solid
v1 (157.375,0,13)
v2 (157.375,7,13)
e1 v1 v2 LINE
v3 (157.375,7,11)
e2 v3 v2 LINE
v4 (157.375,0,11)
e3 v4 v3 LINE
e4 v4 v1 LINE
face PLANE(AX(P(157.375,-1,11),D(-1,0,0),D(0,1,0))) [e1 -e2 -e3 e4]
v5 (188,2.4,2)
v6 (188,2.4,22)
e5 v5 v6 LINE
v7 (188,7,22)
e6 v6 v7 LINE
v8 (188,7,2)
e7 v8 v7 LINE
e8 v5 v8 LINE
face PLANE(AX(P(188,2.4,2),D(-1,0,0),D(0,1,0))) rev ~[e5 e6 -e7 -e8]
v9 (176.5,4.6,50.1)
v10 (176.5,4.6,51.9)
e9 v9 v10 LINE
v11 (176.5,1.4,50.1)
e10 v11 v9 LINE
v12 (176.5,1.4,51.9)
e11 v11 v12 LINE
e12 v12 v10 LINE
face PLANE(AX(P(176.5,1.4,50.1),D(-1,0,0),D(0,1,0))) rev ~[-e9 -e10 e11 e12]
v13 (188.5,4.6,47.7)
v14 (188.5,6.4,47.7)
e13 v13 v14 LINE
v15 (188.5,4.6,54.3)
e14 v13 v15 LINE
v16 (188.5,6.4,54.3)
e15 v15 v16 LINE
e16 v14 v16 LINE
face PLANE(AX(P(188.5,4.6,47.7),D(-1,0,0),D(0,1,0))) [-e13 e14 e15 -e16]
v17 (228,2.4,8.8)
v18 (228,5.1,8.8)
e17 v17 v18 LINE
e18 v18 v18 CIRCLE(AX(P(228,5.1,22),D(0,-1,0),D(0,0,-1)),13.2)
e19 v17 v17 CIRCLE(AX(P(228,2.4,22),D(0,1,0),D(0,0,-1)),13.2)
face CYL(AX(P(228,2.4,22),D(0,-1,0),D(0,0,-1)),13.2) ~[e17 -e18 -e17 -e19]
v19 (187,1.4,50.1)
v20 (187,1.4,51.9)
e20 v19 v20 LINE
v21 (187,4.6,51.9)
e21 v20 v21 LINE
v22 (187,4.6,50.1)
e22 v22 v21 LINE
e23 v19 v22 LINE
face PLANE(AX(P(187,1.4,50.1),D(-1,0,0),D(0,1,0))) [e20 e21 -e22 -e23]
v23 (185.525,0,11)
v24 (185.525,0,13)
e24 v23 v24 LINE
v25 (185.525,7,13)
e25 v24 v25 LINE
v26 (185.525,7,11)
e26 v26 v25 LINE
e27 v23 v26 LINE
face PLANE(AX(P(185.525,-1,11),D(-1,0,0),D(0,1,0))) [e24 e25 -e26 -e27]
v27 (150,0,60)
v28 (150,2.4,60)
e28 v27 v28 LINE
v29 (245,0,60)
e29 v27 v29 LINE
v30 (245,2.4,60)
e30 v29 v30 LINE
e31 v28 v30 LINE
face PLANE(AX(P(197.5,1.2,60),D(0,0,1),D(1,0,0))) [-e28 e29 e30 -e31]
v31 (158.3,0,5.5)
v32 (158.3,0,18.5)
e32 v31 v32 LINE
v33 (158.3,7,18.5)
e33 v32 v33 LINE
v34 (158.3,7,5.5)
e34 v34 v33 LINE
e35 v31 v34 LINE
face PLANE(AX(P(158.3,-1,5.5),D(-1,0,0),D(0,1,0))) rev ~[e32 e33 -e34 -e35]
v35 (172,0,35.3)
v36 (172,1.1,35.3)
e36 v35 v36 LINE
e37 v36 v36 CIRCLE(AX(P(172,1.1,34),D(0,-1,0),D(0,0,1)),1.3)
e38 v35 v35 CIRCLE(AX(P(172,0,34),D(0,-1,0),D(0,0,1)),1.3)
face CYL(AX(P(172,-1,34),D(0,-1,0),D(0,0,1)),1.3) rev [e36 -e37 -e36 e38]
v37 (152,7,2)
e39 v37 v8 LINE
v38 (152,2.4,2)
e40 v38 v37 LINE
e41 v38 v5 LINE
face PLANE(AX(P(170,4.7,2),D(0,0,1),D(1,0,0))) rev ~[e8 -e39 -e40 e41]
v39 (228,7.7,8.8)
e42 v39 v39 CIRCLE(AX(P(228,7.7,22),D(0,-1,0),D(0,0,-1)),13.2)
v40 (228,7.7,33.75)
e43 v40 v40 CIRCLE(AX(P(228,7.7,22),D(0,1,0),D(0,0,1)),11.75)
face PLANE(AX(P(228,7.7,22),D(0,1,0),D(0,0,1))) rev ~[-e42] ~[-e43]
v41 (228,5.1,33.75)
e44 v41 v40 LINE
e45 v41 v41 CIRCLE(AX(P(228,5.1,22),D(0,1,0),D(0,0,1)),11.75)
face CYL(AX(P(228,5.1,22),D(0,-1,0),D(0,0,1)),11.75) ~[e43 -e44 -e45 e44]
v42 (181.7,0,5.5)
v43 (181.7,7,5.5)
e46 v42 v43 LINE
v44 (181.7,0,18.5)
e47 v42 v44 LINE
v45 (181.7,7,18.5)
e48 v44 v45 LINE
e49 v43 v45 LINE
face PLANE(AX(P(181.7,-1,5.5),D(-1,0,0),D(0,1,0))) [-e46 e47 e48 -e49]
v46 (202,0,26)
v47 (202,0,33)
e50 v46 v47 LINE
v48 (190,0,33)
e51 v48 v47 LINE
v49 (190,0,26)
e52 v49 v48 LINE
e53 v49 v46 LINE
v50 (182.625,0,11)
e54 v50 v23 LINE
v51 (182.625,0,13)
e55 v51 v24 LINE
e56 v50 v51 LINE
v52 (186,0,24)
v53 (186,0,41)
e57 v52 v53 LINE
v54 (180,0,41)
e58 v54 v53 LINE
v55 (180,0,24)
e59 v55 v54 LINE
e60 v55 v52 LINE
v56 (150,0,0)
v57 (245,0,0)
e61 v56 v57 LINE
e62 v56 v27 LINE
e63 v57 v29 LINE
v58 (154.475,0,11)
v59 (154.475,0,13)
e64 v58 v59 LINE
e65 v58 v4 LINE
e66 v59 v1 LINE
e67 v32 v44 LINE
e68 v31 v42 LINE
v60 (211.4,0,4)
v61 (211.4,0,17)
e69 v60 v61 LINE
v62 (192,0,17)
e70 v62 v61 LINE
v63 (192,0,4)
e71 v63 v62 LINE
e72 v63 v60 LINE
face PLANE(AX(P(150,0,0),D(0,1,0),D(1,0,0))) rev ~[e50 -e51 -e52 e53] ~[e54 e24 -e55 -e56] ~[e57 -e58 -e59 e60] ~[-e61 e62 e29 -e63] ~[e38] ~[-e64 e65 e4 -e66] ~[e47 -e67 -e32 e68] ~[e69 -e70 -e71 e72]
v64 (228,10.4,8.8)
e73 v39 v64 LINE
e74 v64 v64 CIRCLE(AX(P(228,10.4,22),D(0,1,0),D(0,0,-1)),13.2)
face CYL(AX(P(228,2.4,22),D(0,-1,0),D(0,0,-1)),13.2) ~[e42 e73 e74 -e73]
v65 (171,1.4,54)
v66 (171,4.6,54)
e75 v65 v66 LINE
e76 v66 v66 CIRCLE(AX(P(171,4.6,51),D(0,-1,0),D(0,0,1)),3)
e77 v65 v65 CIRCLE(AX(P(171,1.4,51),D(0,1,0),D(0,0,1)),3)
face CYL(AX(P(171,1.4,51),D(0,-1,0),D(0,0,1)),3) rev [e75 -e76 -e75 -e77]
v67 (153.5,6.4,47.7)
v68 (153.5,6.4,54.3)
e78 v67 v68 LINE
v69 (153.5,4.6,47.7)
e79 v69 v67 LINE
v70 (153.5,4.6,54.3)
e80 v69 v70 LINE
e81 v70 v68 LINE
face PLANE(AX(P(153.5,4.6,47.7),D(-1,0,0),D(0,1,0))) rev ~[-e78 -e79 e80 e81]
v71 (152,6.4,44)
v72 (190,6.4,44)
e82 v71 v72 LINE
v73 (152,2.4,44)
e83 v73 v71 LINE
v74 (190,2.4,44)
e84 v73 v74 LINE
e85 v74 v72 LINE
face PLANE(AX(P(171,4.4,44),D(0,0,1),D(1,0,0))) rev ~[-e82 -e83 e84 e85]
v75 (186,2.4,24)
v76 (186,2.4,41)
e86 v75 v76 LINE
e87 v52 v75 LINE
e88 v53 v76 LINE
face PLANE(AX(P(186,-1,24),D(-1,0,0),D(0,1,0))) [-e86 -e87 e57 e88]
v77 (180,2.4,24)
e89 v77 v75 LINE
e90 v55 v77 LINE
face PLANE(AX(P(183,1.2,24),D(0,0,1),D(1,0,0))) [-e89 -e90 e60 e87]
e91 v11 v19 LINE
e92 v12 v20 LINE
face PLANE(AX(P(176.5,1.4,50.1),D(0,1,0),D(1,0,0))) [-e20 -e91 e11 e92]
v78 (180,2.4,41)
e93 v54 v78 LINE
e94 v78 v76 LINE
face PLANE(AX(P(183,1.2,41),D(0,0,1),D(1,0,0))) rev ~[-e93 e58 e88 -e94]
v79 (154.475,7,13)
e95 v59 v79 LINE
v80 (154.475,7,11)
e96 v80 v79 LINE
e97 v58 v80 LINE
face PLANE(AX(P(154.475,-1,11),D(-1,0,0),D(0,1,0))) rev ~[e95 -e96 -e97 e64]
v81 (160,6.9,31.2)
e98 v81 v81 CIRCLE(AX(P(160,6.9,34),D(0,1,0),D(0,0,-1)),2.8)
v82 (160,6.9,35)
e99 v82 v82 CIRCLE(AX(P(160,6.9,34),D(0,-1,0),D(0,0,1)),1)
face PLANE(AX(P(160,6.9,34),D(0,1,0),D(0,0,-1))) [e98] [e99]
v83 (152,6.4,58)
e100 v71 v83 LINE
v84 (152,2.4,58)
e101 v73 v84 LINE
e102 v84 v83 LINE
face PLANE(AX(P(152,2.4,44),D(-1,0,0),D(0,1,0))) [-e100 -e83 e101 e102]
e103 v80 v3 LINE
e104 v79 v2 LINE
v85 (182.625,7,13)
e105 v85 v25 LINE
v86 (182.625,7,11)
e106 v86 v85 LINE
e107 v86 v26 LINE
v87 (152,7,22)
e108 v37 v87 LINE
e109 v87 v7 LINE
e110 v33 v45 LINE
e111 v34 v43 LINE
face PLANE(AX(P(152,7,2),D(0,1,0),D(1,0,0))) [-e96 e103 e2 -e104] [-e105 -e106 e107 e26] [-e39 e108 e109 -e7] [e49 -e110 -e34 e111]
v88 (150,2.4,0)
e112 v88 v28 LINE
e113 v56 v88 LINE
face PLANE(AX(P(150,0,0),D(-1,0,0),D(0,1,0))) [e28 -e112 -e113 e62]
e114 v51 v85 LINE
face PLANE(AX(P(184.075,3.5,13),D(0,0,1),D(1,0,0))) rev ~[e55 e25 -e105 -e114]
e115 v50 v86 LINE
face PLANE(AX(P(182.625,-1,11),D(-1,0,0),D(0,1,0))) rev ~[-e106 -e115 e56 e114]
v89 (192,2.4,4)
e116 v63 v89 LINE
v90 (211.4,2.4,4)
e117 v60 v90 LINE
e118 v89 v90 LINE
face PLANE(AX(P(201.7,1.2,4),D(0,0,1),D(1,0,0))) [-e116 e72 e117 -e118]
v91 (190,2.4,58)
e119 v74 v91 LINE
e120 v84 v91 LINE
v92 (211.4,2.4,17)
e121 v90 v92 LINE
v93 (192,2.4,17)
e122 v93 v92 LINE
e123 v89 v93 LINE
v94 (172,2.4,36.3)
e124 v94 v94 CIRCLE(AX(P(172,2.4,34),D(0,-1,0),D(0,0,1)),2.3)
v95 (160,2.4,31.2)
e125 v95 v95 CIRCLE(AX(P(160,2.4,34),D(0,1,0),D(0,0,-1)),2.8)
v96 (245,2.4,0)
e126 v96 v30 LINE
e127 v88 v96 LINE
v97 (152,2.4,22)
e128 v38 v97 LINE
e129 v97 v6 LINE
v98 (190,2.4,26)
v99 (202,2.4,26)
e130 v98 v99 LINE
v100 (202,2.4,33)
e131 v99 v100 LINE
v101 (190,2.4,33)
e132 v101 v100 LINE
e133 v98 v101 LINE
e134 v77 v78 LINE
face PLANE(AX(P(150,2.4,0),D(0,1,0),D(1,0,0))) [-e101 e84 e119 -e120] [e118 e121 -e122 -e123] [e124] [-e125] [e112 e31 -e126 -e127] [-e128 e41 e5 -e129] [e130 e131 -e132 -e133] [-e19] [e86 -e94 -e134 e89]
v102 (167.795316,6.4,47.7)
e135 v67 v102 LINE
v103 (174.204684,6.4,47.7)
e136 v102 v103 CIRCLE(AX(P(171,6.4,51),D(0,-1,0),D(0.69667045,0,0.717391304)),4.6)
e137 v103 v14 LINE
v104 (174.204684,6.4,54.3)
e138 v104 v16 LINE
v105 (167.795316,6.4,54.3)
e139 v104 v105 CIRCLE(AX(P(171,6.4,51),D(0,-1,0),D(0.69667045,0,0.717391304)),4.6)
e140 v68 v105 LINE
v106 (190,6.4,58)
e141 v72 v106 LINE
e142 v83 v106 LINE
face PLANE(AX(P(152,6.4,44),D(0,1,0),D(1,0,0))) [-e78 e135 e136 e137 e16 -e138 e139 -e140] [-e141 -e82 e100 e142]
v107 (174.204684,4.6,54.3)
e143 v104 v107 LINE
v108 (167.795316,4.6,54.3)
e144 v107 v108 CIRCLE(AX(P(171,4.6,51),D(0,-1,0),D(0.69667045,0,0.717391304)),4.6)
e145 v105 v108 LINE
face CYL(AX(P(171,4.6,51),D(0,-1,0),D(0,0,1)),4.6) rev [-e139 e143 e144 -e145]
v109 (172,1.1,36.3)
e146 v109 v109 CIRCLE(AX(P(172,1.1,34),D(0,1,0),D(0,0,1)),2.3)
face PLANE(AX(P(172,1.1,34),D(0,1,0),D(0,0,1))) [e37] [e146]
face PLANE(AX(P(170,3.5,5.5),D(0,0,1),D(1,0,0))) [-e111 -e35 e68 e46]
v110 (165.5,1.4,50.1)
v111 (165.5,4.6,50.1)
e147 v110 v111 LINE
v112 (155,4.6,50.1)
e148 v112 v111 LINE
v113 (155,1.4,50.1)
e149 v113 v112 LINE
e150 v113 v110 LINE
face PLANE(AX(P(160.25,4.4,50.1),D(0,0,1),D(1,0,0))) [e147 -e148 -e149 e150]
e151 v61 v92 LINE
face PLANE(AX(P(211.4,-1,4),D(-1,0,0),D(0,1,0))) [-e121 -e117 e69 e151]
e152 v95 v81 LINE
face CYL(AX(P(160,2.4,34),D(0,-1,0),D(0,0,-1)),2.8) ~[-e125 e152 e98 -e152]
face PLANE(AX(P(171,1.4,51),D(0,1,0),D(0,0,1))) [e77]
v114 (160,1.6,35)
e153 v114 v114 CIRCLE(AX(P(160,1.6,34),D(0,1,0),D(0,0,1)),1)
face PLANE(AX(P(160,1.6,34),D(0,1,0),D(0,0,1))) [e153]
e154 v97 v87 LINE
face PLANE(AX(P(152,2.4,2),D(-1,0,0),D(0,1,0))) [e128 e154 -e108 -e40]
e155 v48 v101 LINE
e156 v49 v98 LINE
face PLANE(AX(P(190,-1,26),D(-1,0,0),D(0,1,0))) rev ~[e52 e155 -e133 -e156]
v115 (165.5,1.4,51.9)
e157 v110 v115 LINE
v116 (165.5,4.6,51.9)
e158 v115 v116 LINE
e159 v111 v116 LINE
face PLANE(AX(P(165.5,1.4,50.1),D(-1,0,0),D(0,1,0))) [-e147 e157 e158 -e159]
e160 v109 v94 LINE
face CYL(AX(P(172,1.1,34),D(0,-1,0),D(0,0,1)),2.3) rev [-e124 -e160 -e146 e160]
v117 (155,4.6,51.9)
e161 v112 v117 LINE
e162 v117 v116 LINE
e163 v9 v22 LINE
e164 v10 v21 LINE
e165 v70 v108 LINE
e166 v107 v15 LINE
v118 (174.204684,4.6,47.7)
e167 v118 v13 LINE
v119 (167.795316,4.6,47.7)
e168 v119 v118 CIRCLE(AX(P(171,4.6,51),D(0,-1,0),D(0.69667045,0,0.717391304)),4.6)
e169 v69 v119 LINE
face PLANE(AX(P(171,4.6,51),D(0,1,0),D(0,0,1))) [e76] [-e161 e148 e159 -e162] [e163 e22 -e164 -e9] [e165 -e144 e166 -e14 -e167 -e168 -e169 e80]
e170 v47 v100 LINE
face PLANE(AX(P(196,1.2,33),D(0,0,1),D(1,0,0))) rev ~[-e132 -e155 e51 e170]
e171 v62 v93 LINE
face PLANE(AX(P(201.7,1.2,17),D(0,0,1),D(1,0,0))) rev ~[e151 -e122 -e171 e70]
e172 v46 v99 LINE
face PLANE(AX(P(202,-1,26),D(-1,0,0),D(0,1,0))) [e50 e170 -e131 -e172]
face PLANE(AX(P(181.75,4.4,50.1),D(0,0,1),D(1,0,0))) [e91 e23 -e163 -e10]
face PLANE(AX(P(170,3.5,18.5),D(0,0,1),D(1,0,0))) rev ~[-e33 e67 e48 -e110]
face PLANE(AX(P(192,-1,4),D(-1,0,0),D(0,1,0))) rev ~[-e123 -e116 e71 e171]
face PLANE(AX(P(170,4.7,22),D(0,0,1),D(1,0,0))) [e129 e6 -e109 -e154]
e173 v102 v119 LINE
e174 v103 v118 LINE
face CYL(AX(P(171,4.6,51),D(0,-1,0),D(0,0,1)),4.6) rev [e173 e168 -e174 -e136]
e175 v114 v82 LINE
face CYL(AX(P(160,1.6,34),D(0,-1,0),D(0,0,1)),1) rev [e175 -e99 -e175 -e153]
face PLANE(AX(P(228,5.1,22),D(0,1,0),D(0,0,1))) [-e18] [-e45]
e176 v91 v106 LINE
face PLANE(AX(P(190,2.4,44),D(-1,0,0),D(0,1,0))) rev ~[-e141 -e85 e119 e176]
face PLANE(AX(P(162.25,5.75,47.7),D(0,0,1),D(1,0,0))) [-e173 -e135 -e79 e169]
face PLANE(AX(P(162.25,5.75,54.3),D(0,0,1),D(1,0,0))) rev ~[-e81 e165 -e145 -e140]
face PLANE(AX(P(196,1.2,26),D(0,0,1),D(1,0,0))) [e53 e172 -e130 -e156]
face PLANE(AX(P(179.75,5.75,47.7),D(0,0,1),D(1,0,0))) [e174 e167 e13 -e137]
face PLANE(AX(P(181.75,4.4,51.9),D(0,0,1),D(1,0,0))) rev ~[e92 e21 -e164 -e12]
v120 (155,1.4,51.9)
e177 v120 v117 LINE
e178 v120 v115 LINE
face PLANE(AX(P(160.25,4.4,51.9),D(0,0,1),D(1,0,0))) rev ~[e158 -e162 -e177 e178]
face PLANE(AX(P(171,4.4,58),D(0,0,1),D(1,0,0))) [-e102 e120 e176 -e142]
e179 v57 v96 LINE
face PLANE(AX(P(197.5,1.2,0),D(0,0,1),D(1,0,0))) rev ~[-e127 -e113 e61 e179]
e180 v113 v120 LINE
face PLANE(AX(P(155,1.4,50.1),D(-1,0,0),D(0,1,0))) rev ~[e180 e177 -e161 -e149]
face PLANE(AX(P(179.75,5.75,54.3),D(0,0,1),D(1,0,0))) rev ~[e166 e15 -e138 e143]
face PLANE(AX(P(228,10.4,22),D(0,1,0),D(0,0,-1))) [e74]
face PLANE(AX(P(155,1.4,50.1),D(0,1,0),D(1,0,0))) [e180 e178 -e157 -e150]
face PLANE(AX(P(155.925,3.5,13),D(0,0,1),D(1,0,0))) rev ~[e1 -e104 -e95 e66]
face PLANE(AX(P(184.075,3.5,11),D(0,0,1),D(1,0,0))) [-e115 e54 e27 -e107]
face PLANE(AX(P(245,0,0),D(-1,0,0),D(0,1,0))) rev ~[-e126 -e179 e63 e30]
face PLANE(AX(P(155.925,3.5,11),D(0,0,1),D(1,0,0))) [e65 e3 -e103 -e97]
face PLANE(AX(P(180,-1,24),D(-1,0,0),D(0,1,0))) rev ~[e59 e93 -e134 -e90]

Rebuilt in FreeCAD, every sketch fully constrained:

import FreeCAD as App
import Part
import Sketcher
from FreeCAD import Vector


def add_polygon(sketch, points):
    """Adds a closed chain of lines whose ends are joined by coincident constraints."""
    first, n = sketch.GeometryCount, len(points)
    for a, b in zip(points, points[1:] + points[:1]):
        sketch.addGeometry(Part.LineSegment(App.Vector(*a, 0), App.Vector(*b, 0)), False)
    for i in range(n):
        sketch.addConstraint(Sketcher.Constraint("Coincident", first + i, 2, first + (i + 1) % n, 1))

doc = App.newDocument("Part")
params = doc.addObject("Spreadsheet::Sheet", "Params")
for row, (alias, value) in enumerate([
    ("sketch1_width", "95 mm"),
    ("sketch1_height", "2.4 mm"),
    ("pad1_length", "60 mm"),
    ("sketch2_width", "36 mm"),
    ("sketch2_height", "4.6 mm"),
    ("pad2_length", "20 mm"),
    ("sketch3_height", "9 mm"),
    ("sketch3_width", "23.4 mm"),
    ("pad3_length", "13 mm"),
    ("sketch4_height", "9 mm"),
    ("sketch4_width", "2.9 mm"),
    ("pad4_length", "2 mm"),
    ("sketch5_height", "9 mm"),
    ("sketch5_width", "2.9 mm"),
    ("pad5_length", "2 mm"),
    ("sketch6_width", "19.4 mm"),
    ("sketch6_height", "4.4 mm"),
    ("pad6_length", "13 mm"),
    ("sketch7_diameter", "5.6 mm"),
    ("pad7_length", "4.5 mm"),
    ("sketch8_diameter", "2 mm"),
    ("pad8_length", "6.3 mm"),
    ("sketch9_diameter", "2.6 mm"),
    ("pad9_length", "4.4 mm"),
    ("sketch10_diameter", "4.6 mm"),
    ("pad10_length", "2.3 mm"),
    ("sketch11_width", "6 mm"),
    ("sketch11_height", "4.4 mm"),
    ("pad11_length", "17 mm"),
    ("sketch12_width", "12 mm"),
    ("sketch12_height", "4.4 mm"),
    ("pad12_length", "7 mm"),
    ("sketch13_diameter", "26.4 mm"),
    ("pad13_length", "8 mm"),
    ("sketch14_diameter", "40 mm"),
    ("pad14_length", "2.6 mm"),
    ("sketch15_diameter", "23.5 mm"),
    ("pad15_length", "2.6 mm"),
    ("sketch16_width", "38 mm"),
    ("sketch16_height", "4 mm"),
    ("pad16_length", "14 mm"),
    ("sketch17_diameter", "9.2 mm"),
    ("pad17_length", "2.3 mm"),
    ("sketch18_width", "17.5 mm"),
    ("sketch18_height", "2.3 mm"),
    ("pad18_length", "6.6 mm"),
    ("sketch19_height", "6 mm"),
    ("sketch19_width", "10.5 mm"),
    ("pad19_length", "1.8 mm"),
    ("sketch20_width", "17.5 mm"),
    ("sketch20_height", "2.3 mm"),
    ("pad20_length", "6.6 mm"),
    ("sketch21_height", "6 mm"),
    ("sketch21_width", "10.5 mm"),
    ("pad21_length", "1.8 mm"),
    ("sketch22_diameter", "6 mm"),
    ("pad22_length", "6 mm"),
], start=1):
    params.set(f"A{row}", alias)
    params.set(f"B{row}", "=" + value)
    params.setAlias(f"B{row}", alias)

body = doc.addObject("PartDesign::Body", "Body")

# Sketch on XY plane
sketch1 = body.newObject("Sketcher::SketchObject", "Sketch")
sketch1.AttachmentSupport = (doc.getObject("XY_Plane"), [""])
sketch1.MapMode = "FlatFace"
add_polygon(sketch1, [(150, 2.4), (150, 0), (245, 0), (245, 2.4)])  # lines 0-3
sketch1.addConstraint([
    Sketcher.Constraint("Vertical", 0),
    Sketcher.Constraint("Horizontal", 1),
    Sketcher.Constraint("Vertical", 2),
    Sketcher.Constraint("Horizontal", 3),
    Sketcher.Constraint("PointOnObject", 0, 2, -1),
    Sketcher.Constraint("DistanceX", 1, 1, 1, 2, 95.0),
    Sketcher.Constraint("DistanceY", 0, 2, 0, 1, 2.4),
    Sketcher.Constraint("DistanceX", -1, 1, 0, 2, 150.0),
])
sketch1.setExpression("Constraints[9]", "Params.sketch1_width")
sketch1.setExpression("Constraints[10]", "Params.sketch1_height")
pad1 = body.newObject("PartDesign::Pad", "Pad")
pad1.Profile = sketch1
pad1.setExpression("Length", "Params.pad1_length")

# Sketch on XY plane
sketch2 = body.newObject("Sketcher::SketchObject", "Sketch001")
sketch2.AttachmentSupport = (doc.getObject("XY_Plane"), [""])
sketch2.MapMode = "FlatFace"
sketch2.AttachmentOffset = App.Placement(Vector(0, 0, 2), App.Rotation())
add_polygon(sketch2, [(152, 7), (152, 2.4), (188, 2.4), (188, 7)])  # lines 0-3
sketch2.addConstraint([
    Sketcher.Constraint("Vertical", 0),
    Sketcher.Constraint("Horizontal", 1),
    Sketcher.Constraint("Vertical", 2),
    Sketcher.Constraint("Horizontal", 3),
    Sketcher.Constraint("DistanceX", 1, 1, 1, 2, 36.0),
    Sketcher.Constraint("DistanceY", 0, 2, 0, 1, 4.6),
    Sketcher.Constraint("DistanceX", -1, 1, 0, 2, 152.0),
    Sketcher.Constraint("DistanceY", -1, 1, 2, 2, 7.0),
])
sketch2.setExpression("Constraints[8]", "Params.sketch2_width")
sketch2.setExpression("Constraints[9]", "Params.sketch2_height")
pad2 = body.newObject("PartDesign::Pad", "Pad001")
pad2.Profile = sketch2
pad2.setExpression("Length", "Params.pad2_length")
body2 = doc.addObject("PartDesign::Body", "Body001")

# Sketch on XY plane
sketch3 = body2.newObject("Sketcher::SketchObject", "Sketch002")
sketch3.AttachmentSupport = (doc.getObject("XY_Plane001"), [""])
sketch3.MapMode = "FlatFace"
sketch3.AttachmentOffset = App.Placement(Vector(0, 0, 5.5), App.Rotation())
add_polygon(sketch3, [(158, 8), (158, -1), (182, -1), (182, 8)])  # lines 0-3
sketch3.addConstraint([
    Sketcher.Constraint("Vertical", 0),
    Sketcher.Constraint("Horizontal", 1),
    Sketcher.Constraint("Vertical", 2),
    Sketcher.Constraint("Horizontal", 3),
    Sketcher.Constraint("DistanceY", 0, 2, 0, 1, 9.0),
    Sketcher.Constraint("DistanceX", 1, 1, 1, 2, 23.4),
    Sketcher.Constraint("DistanceY", 0, 2, -1, 1, 1.0),
    Sketcher.Constraint("DistanceX", -1, 1, 0, 2, 158.3),
])
sketch3.setExpression("Constraints[8]", "Params.sketch3_height")
sketch3.setExpression("Constraints[9]", "Params.sketch3_width")
pad3 = body2.newObject("PartDesign::Pad", "Pad002")
pad3.Profile = sketch3
pad3.setExpression("Length", "Params.pad3_length")
doc.recompute()

boolean = body.newObject("PartDesign::Boolean", "Boolean")
boolean.Type = "Cut"
boolean.addObjects([body2])
body3 = doc.addObject("PartDesign::Body", "Body002")

# Sketch on XY plane
sketch4 = body3.newObject("Sketcher::SketchObject", "Sketch003")
sketch4.AttachmentSupport = (doc.getObject("XY_Plane002"), [""])
sketch4.MapMode = "FlatFace"
sketch4.AttachmentOffset = App.Placement(Vector(0, 0, 11), App.Rotation())
add_polygon(sketch4, [(154.5, 8), (154.5, -1), (157.4, -1), (157.4, 8)])  # lines 0-3
sketch4.addConstraint([
    Sketcher.Constraint("Vertical", 0),
    Sketcher.Constraint("Horizontal", 1),
    Sketcher.Constraint("Vertical", 2),
    Sketcher.Constraint("Horizontal", 3),
    Sketcher.Constraint("DistanceY", 0, 2, 0, 1, 9.0),
    Sketcher.Constraint("DistanceX", 1, 1, 1, 2, 2.9),
    Sketcher.Constraint("DistanceY", 0, 2, -1, 1, 1.0),
    Sketcher.Constraint("DistanceX", -1, 1, 0, 2, 154.475),
])
sketch4.setExpression("Constraints[8]", "Params.sketch4_height")
sketch4.setExpression("Constraints[9]", "Params.sketch4_width")
pad4 = body3.newObject("PartDesign::Pad", "Pad003")
pad4.Profile = sketch4
pad4.setExpression("Length", "Params.pad4_length")
doc.recompute()

boolean2 = body.newObject("PartDesign::Boolean", "Boolean001")
boolean2.Type = "Cut"
boolean2.addObjects([body3])
body4 = doc.addObject("PartDesign::Body", "Body003")

# Sketch on XY plane
sketch5 = body4.newObject("Sketcher::SketchObject", "Sketch004")
sketch5.AttachmentSupport = (doc.getObject("XY_Plane003"), [""])
sketch5.MapMode = "FlatFace"
sketch5.AttachmentOffset = App.Placement(Vector(0, 0, 11), App.Rotation())
add_polygon(sketch5, [(182.6, 8), (182.6, -1), (185.5, -1), (185.5, 8)])  # lines 0-3
sketch5.addConstraint([
    Sketcher.Constraint("Vertical", 0),
    Sketcher.Constraint("Horizontal", 1),
    Sketcher.Constraint("Vertical", 2),
    Sketcher.Constraint("Horizontal", 3),
    Sketcher.Constraint("DistanceY", 0, 2, 0, 1, 9.0),
    Sketcher.Constraint("DistanceX", 1, 1, 1, 2, 2.9),
    Sketcher.Constraint("DistanceY", 0, 2, -1, 1, 1.0),
    Sketcher.Constraint("DistanceX", -1, 1, 0, 2, 182.625),
])
sketch5.setExpression("Constraints[8]", "Params.sketch5_height")
sketch5.setExpression("Constraints[9]", "Params.sketch5_width")
pad5 = body4.newObject("PartDesign::Pad", "Pad004")
pad5.Profile = sketch5
pad5.setExpression("Length", "Params.pad5_length")
doc.recompute()

boolean3 = body.newObject("PartDesign::Boolean", "Boolean002")
boolean3.Type = "Cut"
boolean3.addObjects([body4])
body5 = doc.addObject("PartDesign::Body", "Body004")

# Sketch on XY plane
sketch6 = body5.newObject("Sketcher::SketchObject", "Sketch005")
sketch6.AttachmentSupport = (doc.getObject("XY_Plane004"), [""])
sketch6.MapMode = "FlatFace"
sketch6.AttachmentOffset = App.Placement(Vector(0, 0, 4), App.Rotation())
add_polygon(sketch6, [(192, 3.4), (192, -1), (211.4, -1), (211.4, 3.4)])  # lines 0-3
sketch6.addConstraint([
    Sketcher.Constraint("Vertical", 0),
    Sketcher.Constraint("Horizontal", 1),
    Sketcher.Constraint("Vertical", 2),
    Sketcher.Constraint("Horizontal", 3),
    Sketcher.Constraint("DistanceX", 1, 1, 1, 2, 19.4),
    Sketcher.Constraint("DistanceY", 0, 2, 0, 1, 4.4),
    Sketcher.Constraint("DistanceX", -1, 1, 0, 2, 192.0),
    Sketcher.Constraint("DistanceY", 0, 2, -1, 1, 1.0),
])
sketch6.setExpression("Constraints[8]", "Params.sketch6_width")
sketch6.setExpression("Constraints[9]", "Params.sketch6_height")
pad6 = body5.newObject("PartDesign::Pad", "Pad005")
pad6.Profile = sketch6
pad6.setExpression("Length", "Params.pad6_length")
doc.recompute()

boolean4 = body.newObject("PartDesign::Boolean", "Boolean003")
boolean4.Type = "Cut"
boolean4.addObjects([body5])

# Sketch on XZ plane
sketch7 = body.newObject("Sketcher::SketchObject", "Sketch006")
sketch7.AttachmentSupport = (doc.getObject("XZ_Plane"), [""])
sketch7.MapMode = "FlatFace"
sketch7.AttachmentOffset = App.Placement(Vector(0, 0, -2.4), App.Rotation())
sketch7.addGeometry(Part.Circle(Vector(160, 34, 0), Vector(0, 0, 1), 2.8), False)
sketch7.addConstraint([
    Sketcher.Constraint("Diameter", 0, 5.6),
    Sketcher.Constraint("DistanceX", -1, 1, 0, 3, 160.0),
    Sketcher.Constraint("DistanceY", -1, 1, 0, 3, 34.0),
])
sketch7.setExpression("Constraints[0]", "Params.sketch7_diameter")
pad7 = body.newObject("PartDesign::Pad", "Pad006")
pad7.Profile = sketch7
pad7.setExpression("Length", "Params.pad7_length")
pad7.Reversed = True
body6 = doc.addObject("PartDesign::Body", "Body005")

# Sketch on XZ plane
sketch8 = body6.newObject("Sketcher::SketchObject", "Sketch007")
sketch8.AttachmentSupport = (doc.getObject("XZ_Plane005"), [""])
sketch8.MapMode = "FlatFace"
sketch8.AttachmentOffset = App.Placement(Vector(0, 0, -1.6), App.Rotation())
sketch8.addGeometry(Part.Circle(Vector(160, 34, 0), Vector(0, 0, 1), 1), False)
sketch8.addConstraint([
    Sketcher.Constraint("Diameter", 0, 2.0),
    Sketcher.Constraint("DistanceX", -1, 1, 0, 3, 160.0),
    Sketcher.Constraint("DistanceY", -1, 1, 0, 3, 34.0),
])
sketch8.setExpression("Constraints[0]", "Params.sketch8_diameter")
pad8 = body6.newObject("PartDesign::Pad", "Pad007")
pad8.Profile = sketch8
pad8.setExpression("Length", "Params.pad8_length")
pad8.Reversed = True
doc.recompute()

boolean5 = body.newObject("PartDesign::Boolean", "Boolean004")
boolean5.Type = "Cut"
boolean5.addObjects([body6])
body7 = doc.addObject("PartDesign::Body", "Body006")

# Sketch on XZ plane
sketch9 = body7.newObject("Sketcher::SketchObject", "Sketch008")
sketch9.AttachmentSupport = (doc.getObject("XZ_Plane006"), [""])
sketch9.MapMode = "FlatFace"
sketch9.AttachmentOffset = App.Placement(Vector(0, 0, 1), App.Rotation())
sketch9.addGeometry(Part.Circle(Vector(172, 34, 0), Vector(0, 0, 1), 1.3), False)
sketch9.addConstraint([
    Sketcher.Constraint("Diameter", 0, 2.6),
    Sketcher.Constraint("DistanceX", -1, 1, 0, 3, 172.0),
    Sketcher.Constraint("DistanceY", -1, 1, 0, 3, 34.0),
])
sketch9.setExpression("Constraints[0]", "Params.sketch9_diameter")
pad9 = body7.newObject("PartDesign::Pad", "Pad008")
pad9.Profile = sketch9
pad9.setExpression("Length", "Params.pad9_length")
pad9.Reversed = True
doc.recompute()

boolean6 = body.newObject("PartDesign::Boolean", "Boolean005")
boolean6.Type = "Cut"
boolean6.addObjects([body7])
body8 = doc.addObject("PartDesign::Body", "Body007")

# Sketch on XZ plane
sketch10 = body8.newObject("Sketcher::SketchObject", "Sketch009")
sketch10.AttachmentSupport = (doc.getObject("XZ_Plane007"), [""])
sketch10.MapMode = "FlatFace"
sketch10.AttachmentOffset = App.Placement(Vector(0, 0, -1.1), App.Rotation())
sketch10.addGeometry(Part.Circle(Vector(172, 34, 0), Vector(0, 0, 1), 2.3), False)
sketch10.addConstraint([
    Sketcher.Constraint("Diameter", 0, 4.6),
    Sketcher.Constraint("DistanceX", -1, 1, 0, 3, 172.0),
    Sketcher.Constraint("DistanceY", -1, 1, 0, 3, 34.0),
])
sketch10.setExpression("Constraints[0]", "Params.sketch10_diameter")
pad10 = body8.newObject("PartDesign::Pad", "Pad009")
pad10.Profile = sketch10
pad10.setExpression("Length", "Params.pad10_length")
pad10.Reversed = True
doc.recompute()

boolean7 = body.newObject("PartDesign::Boolean", "Boolean006")
boolean7.Type = "Cut"
boolean7.addObjects([body8])
body9 = doc.addObject("PartDesign::Body", "Body008")

# Sketch on XY plane
sketch11 = body9.newObject("Sketcher::SketchObject", "Sketch010")
sketch11.AttachmentSupport = (doc.getObject("XY_Plane008"), [""])
sketch11.MapMode = "FlatFace"
sketch11.AttachmentOffset = App.Placement(Vector(0, 0, 24), App.Rotation())
add_polygon(sketch11, [(180, 3.4), (180, -1), (186, -1), (186, 3.4)])  # lines 0-3
sketch11.addConstraint([
    Sketcher.Constraint("Vertical", 0),
    Sketcher.Constraint("Horizontal", 1),
    Sketcher.Constraint("Vertical", 2),
    Sketcher.Constraint("Horizontal", 3),
    Sketcher.Constraint("DistanceX", 1, 1, 1, 2, 6.0),
    Sketcher.Constraint("DistanceY", 0, 2, 0, 1, 4.4),
    Sketcher.Constraint("DistanceX", -1, 1, 0, 2, 180.0),
    Sketcher.Constraint("DistanceY", 0, 2, -1, 1, 1.0),
])
sketch11.setExpression("Constraints[8]", "Params.sketch11_width")
sketch11.setExpression("Constraints[9]", "Params.sketch11_height")
pad11 = body9.newObject("PartDesign::Pad", "Pad010")
pad11.Profile = sketch11
pad11.setExpression("Length", "Params.pad11_length")
doc.recompute()

boolean8 = body.newObject("PartDesign::Boolean", "Boolean007")
boolean8.Type = "Cut"
boolean8.addObjects([body9])
body10 = doc.addObject("PartDesign::Body", "Body009")

# Sketch on XY plane
sketch12 = body10.newObject("Sketcher::SketchObject", "Sketch011")
sketch12.AttachmentSupport = (doc.getObject("XY_Plane009"), [""])
sketch12.MapMode = "FlatFace"
sketch12.AttachmentOffset = App.Placement(Vector(0, 0, 26), App.Rotation())
add_polygon(sketch12, [(190, 3.4), (190, -1), (202, -1), (202, 3.4)])  # lines 0-3
sketch12.addConstraint([
    Sketcher.Constraint("Vertical", 0),
    Sketcher.Constraint("Horizontal", 1),
    Sketcher.Constraint("Vertical", 2),
    Sketcher.Constraint("Horizontal", 3),
    Sketcher.Constraint("DistanceX", 1, 1, 1, 2, 12.0),
    Sketcher.Constraint("DistanceY", 0, 2, 0, 1, 4.4),
    Sketcher.Constraint("DistanceX", -1, 1, 0, 2, 190.0),
    Sketcher.Constraint("DistanceY", 0, 2, -1, 1, 1.0),
])
sketch12.setExpression("Constraints[8]", "Params.sketch12_width")
sketch12.setExpression("Constraints[9]", "Params.sketch12_height")
pad12 = body10.newObject("PartDesign::Pad", "Pad011")
pad12.Profile = sketch12
pad12.setExpression("Length", "Params.pad12_length")
doc.recompute()

boolean9 = body.newObject("PartDesign::Boolean", "Boolean008")
boolean9.Type = "Cut"
boolean9.addObjects([body10])

# Sketch on XZ plane
sketch13 = body.newObject("Sketcher::SketchObject", "Sketch012")
sketch13.AttachmentSupport = (doc.getObject("XZ_Plane"), [""])
sketch13.MapMode = "FlatFace"
sketch13.AttachmentOffset = App.Placement(Vector(0, 0, -2.4), App.Rotation())
sketch13.addGeometry(Part.Circle(Vector(228, 22, 0), Vector(0, 0, 1), 13), False)
sketch13.addConstraint([
    Sketcher.Constraint("Diameter", 0, 26.4),
    Sketcher.Constraint("DistanceX", -1, 1, 0, 3, 228.0),
    Sketcher.Constraint("DistanceY", -1, 1, 0, 3, 22.0),
])
sketch13.setExpression("Constraints[0]", "Params.sketch13_diameter")
pad13 = body.newObject("PartDesign::Pad", "Pad012")
pad13.Profile = sketch13
pad13.setExpression("Length", "Params.pad13_length")
pad13.Reversed = True
body11 = doc.addObject("PartDesign::Body", "Body010")

# Sketch on XZ plane
sketch14 = body11.newObject("Sketcher::SketchObject", "Sketch013")
sketch14.AttachmentSupport = (doc.getObject("XZ_Plane010"), [""])
sketch14.MapMode = "FlatFace"
sketch14.AttachmentOffset = App.Placement(Vector(0, 0, -5.1), App.Rotation())
sketch14.addGeometry(Part.Circle(Vector(228, 22, 0), Vector(0, 0, 1), 20), False)
sketch14.addConstraint([
    Sketcher.Constraint("Diameter", 0, 40.0),
    Sketcher.Constraint("DistanceX", -1, 1, 0, 3, 228.0),
    Sketcher.Constraint("DistanceY", -1, 1, 0, 3, 22.0),
])
sketch14.setExpression("Constraints[0]", "Params.sketch14_diameter")
pad14 = body11.newObject("PartDesign::Pad", "Pad013")
pad14.Profile = sketch14
pad14.setExpression("Length", "Params.pad14_length")
pad14.Reversed = True
body.AllowCompound = True
doc.recompute()

boolean10 = body.newObject("PartDesign::Boolean", "Boolean009")
boolean10.Type = "Cut"
boolean10.addObjects([body11])

# Sketch on XZ plane
sketch15 = body.newObject("Sketcher::SketchObject", "Sketch014")
sketch15.AttachmentSupport = (doc.getObject("XZ_Plane"), [""])
sketch15.MapMode = "FlatFace"
sketch15.AttachmentOffset = App.Placement(Vector(0, 0, -5.1), App.Rotation())
sketch15.addGeometry(Part.Circle(Vector(228, 22, 0), Vector(0, 0, 1), 12), False)
sketch15.addConstraint([
    Sketcher.Constraint("Diameter", 0, 23.5),
    Sketcher.Constraint("DistanceX", -1, 1, 0, 3, 228.0),
    Sketcher.Constraint("DistanceY", -1, 1, 0, 3, 22.0),
])
sketch15.setExpression("Constraints[0]", "Params.sketch15_diameter")
pad15 = body.newObject("PartDesign::Pad", "Pad014")
pad15.Profile = sketch15
pad15.setExpression("Length", "Params.pad15_length")
pad15.Reversed = True

# Sketch on XY plane
sketch16 = body.newObject("Sketcher::SketchObject", "Sketch015")
sketch16.AttachmentSupport = (doc.getObject("XY_Plane"), [""])
sketch16.MapMode = "FlatFace"
sketch16.AttachmentOffset = App.Placement(Vector(0, 0, 44), App.Rotation())
add_polygon(sketch16, [(152, 6.4), (152, 2.4), (190, 2.4), (190, 6.4)])  # lines 0-3
sketch16.addConstraint([
    Sketcher.Constraint("Vertical", 0),
    Sketcher.Constraint("Horizontal", 1),
    Sketcher.Constraint("Vertical", 2),
    Sketcher.Constraint("Horizontal", 3),
    Sketcher.Constraint("DistanceX", 1, 1, 1, 2, 38.0),
    Sketcher.Constraint("DistanceY", 0, 2, 0, 1, 4.0),
    Sketcher.Constraint("DistanceX", -1, 1, 0, 2, 152.0),
    Sketcher.Constraint("DistanceY", -1, 1, 0, 2, 2.4),
])
sketch16.setExpression("Constraints[8]", "Params.sketch16_width")
sketch16.setExpression("Constraints[9]", "Params.sketch16_height")
pad16 = body.newObject("PartDesign::Pad", "Pad015")
pad16.Profile = sketch16
pad16.setExpression("Length", "Params.pad16_length")
body12 = doc.addObject("PartDesign::Body", "Body011")

# Sketch on XZ plane
sketch17 = body12.newObject("Sketcher::SketchObject", "Sketch016")
sketch17.AttachmentSupport = (doc.getObject("XZ_Plane011"), [""])
sketch17.MapMode = "FlatFace"
sketch17.AttachmentOffset = App.Placement(Vector(0, 0, -4.6), App.Rotation())
sketch17.addGeometry(Part.Circle(Vector(171, 51, 0), Vector(0, 0, 1), 4.6), False)
sketch17.addConstraint([
    Sketcher.Constraint("Diameter", 0, 9.2),
    Sketcher.Constraint("DistanceX", -1, 1, 0, 3, 171.0),
    Sketcher.Constraint("DistanceY", -1, 1, 0, 3, 51.0),
])
sketch17.setExpression("Constraints[0]", "Params.sketch17_diameter")
pad17 = body12.newObject("PartDesign::Pad", "Pad016")
pad17.Profile = sketch17
pad17.setExpression("Length", "Params.pad17_length")
pad17.Reversed = True
doc.recompute()

boolean11 = body.newObject("PartDesign::Boolean", "Boolean010")
boolean11.Type = "Cut"
boolean11.addObjects([body12])
body13 = doc.addObject("PartDesign::Body", "Body012")

# Sketch on XY plane
sketch18 = body13.newObject("Sketcher::SketchObject", "Sketch017")
sketch18.AttachmentSupport = (doc.getObject("XY_Plane012"), [""])
sketch18.MapMode = "FlatFace"
sketch18.AttachmentOffset = App.Placement(Vector(0, 0, 47.7), App.Rotation())
add_polygon(sketch18, [(171, 6.9), (171, 4.6), (188.5, 4.6), (188.5, 6.9)])  # lines 0-3
sketch18.addConstraint([
    Sketcher.Constraint("Vertical", 0),
    Sketcher.Constraint("Horizontal", 1),
    Sketcher.Constraint("Vertical", 2),
    Sketcher.Constraint("Horizontal", 3),
    Sketcher.Constraint("DistanceX", 1, 1, 1, 2, 17.5),
    Sketcher.Constraint("DistanceY", 0, 2, 0, 1, 2.3),
    Sketcher.Constraint("DistanceX", -1, 1, 0, 2, 171.0),
    Sketcher.Constraint("DistanceY", -1, 1, 0, 2, 4.6),
])
sketch18.setExpression("Constraints[8]", "Params.sketch18_width")
sketch18.setExpression("Constraints[9]", "Params.sketch18_height")
pad18 = body13.newObject("PartDesign::Pad", "Pad017")
pad18.Profile = sketch18
pad18.setExpression("Length", "Params.pad18_length")
doc.recompute()

boolean12 = body.newObject("PartDesign::Boolean", "Boolean011")
boolean12.Type = "Cut"
boolean12.addObjects([body13])
body14 = doc.addObject("PartDesign::Body", "Body013")

# Sketch on XY plane
sketch19 = body14.newObject("Sketcher::SketchObject", "Sketch018")
sketch19.AttachmentSupport = (doc.getObject("XY_Plane013"), [""])
sketch19.MapMode = "FlatFace"
sketch19.AttachmentOffset = App.Placement(Vector(0, 0, 50.1), App.Rotation())
add_polygon(sketch19, [(176, 7), (176, 1), (187, 1), (187, 7)])  # lines 0-3
sketch19.addConstraint([
    Sketcher.Constraint("Vertical", 0),
    Sketcher.Constraint("Horizontal", 1),
    Sketcher.Constraint("Vertical", 2),
    Sketcher.Constraint("Horizontal", 3),
    Sketcher.Constraint("DistanceY", 0, 2, 0, 1, 6.0),
    Sketcher.Constraint("DistanceX", 1, 1, 1, 2, 10.5),
    Sketcher.Constraint("DistanceX", -1, 1, 1, 2, 187.0),
    Sketcher.Constraint("DistanceY", -1, 1, 0, 2, 1.4),
])
sketch19.setExpression("Constraints[8]", "Params.sketch19_height")
sketch19.setExpression("Constraints[9]", "Params.sketch19_width")
pad19 = body14.newObject("PartDesign::Pad", "Pad018")
pad19.Profile = sketch19
pad19.setExpression("Length", "Params.pad19_length")
doc.recompute()

boolean13 = body.newObject("PartDesign::Boolean", "Boolean012")
boolean13.Type = "Cut"
boolean13.addObjects([body14])
body15 = doc.addObject("PartDesign::Body", "Body014")

# Sketch on XY plane
sketch20 = body15.newObject("Sketcher::SketchObject", "Sketch019")
sketch20.AttachmentSupport = (doc.getObject("XY_Plane014"), [""])
sketch20.MapMode = "FlatFace"
sketch20.AttachmentOffset = App.Placement(Vector(0, 0, 47.7), App.Rotation())
add_polygon(sketch20, [(153.5, 6.9), (153.5, 4.6), (171, 4.6), (171, 6.9)])  # lines 0-3
sketch20.addConstraint([
    Sketcher.Constraint("Vertical", 0),
    Sketcher.Constraint("Horizontal", 1),
    Sketcher.Constraint("Vertical", 2),
    Sketcher.Constraint("Horizontal", 3),
    Sketcher.Constraint("DistanceX", 1, 1, 1, 2, 17.5),
    Sketcher.Constraint("DistanceY", 0, 2, 0, 1, 2.3),
    Sketcher.Constraint("DistanceX", -1, 1, 1, 2, 171.0),
    Sketcher.Constraint("DistanceY", -1, 1, 0, 2, 4.6),
])
sketch20.setExpression("Constraints[8]", "Params.sketch20_width")
sketch20.setExpression("Constraints[9]", "Params.sketch20_height")
pad20 = body15.newObject("PartDesign::Pad", "Pad019")
pad20.Profile = sketch20
pad20.setExpression("Length", "Params.pad20_length")
doc.recompute()

boolean14 = body.newObject("PartDesign::Boolean", "Boolean013")
boolean14.Type = "Cut"
boolean14.addObjects([body15])
body16 = doc.addObject("PartDesign::Body", "Body015")

# Sketch on XY plane
sketch21 = body16.newObject("Sketcher::SketchObject", "Sketch020")
sketch21.AttachmentSupport = (doc.getObject("XY_Plane015"), [""])
sketch21.MapMode = "FlatFace"
sketch21.AttachmentOffset = App.Placement(Vector(0, 0, 50.1), App.Rotation())
add_polygon(sketch21, [(155, 7), (155, 1), (166, 1), (166, 7)])  # lines 0-3
sketch21.addConstraint([
    Sketcher.Constraint("Vertical", 0),
    Sketcher.Constraint("Horizontal", 1),
    Sketcher.Constraint("Vertical", 2),
    Sketcher.Constraint("Horizontal", 3),
    Sketcher.Constraint("DistanceY", 0, 2, 0, 1, 6.0),
    Sketcher.Constraint("DistanceX", 1, 1, 1, 2, 10.5),
    Sketcher.Constraint("DistanceX", -1, 1, 0, 2, 155.0),
    Sketcher.Constraint("DistanceY", -1, 1, 0, 2, 1.4),
])
sketch21.setExpression("Constraints[8]", "Params.sketch21_height")
sketch21.setExpression("Constraints[9]", "Params.sketch21_width")
pad21 = body16.newObject("PartDesign::Pad", "Pad020")
pad21.Profile = sketch21
pad21.setExpression("Length", "Params.pad21_length")
doc.recompute()

boolean15 = body.newObject("PartDesign::Boolean", "Boolean014")
boolean15.Type = "Cut"
boolean15.addObjects([body16])
body17 = doc.addObject("PartDesign::Body", "Body016")

# Sketch on XZ plane
sketch22 = body17.newObject("Sketcher::SketchObject", "Sketch021")
sketch22.AttachmentSupport = (doc.getObject("XZ_Plane016"), [""])
sketch22.MapMode = "FlatFace"
sketch22.AttachmentOffset = App.Placement(Vector(0, 0, -1.4), App.Rotation())
sketch22.addGeometry(Part.Circle(Vector(171, 51, 0), Vector(0, 0, 1), 3), False)
sketch22.addConstraint([
    Sketcher.Constraint("Diameter", 0, 6.0),
    Sketcher.Constraint("DistanceX", -1, 1, 0, 3, 171.0),
    Sketcher.Constraint("DistanceY", -1, 1, 0, 3, 51.0),
])
sketch22.setExpression("Constraints[0]", "Params.sketch22_diameter")
pad22 = body17.newObject("PartDesign::Pad", "Pad021")
pad22.Profile = sketch22
pad22.setExpression("Length", "Params.pad22_length")
pad22.Reversed = True
doc.recompute()

boolean16 = body.newObject("PartDesign::Boolean", "Boolean015")
boolean16.Type = "Cut"
boolean16.addObjects([body17])

doc.recompute()
